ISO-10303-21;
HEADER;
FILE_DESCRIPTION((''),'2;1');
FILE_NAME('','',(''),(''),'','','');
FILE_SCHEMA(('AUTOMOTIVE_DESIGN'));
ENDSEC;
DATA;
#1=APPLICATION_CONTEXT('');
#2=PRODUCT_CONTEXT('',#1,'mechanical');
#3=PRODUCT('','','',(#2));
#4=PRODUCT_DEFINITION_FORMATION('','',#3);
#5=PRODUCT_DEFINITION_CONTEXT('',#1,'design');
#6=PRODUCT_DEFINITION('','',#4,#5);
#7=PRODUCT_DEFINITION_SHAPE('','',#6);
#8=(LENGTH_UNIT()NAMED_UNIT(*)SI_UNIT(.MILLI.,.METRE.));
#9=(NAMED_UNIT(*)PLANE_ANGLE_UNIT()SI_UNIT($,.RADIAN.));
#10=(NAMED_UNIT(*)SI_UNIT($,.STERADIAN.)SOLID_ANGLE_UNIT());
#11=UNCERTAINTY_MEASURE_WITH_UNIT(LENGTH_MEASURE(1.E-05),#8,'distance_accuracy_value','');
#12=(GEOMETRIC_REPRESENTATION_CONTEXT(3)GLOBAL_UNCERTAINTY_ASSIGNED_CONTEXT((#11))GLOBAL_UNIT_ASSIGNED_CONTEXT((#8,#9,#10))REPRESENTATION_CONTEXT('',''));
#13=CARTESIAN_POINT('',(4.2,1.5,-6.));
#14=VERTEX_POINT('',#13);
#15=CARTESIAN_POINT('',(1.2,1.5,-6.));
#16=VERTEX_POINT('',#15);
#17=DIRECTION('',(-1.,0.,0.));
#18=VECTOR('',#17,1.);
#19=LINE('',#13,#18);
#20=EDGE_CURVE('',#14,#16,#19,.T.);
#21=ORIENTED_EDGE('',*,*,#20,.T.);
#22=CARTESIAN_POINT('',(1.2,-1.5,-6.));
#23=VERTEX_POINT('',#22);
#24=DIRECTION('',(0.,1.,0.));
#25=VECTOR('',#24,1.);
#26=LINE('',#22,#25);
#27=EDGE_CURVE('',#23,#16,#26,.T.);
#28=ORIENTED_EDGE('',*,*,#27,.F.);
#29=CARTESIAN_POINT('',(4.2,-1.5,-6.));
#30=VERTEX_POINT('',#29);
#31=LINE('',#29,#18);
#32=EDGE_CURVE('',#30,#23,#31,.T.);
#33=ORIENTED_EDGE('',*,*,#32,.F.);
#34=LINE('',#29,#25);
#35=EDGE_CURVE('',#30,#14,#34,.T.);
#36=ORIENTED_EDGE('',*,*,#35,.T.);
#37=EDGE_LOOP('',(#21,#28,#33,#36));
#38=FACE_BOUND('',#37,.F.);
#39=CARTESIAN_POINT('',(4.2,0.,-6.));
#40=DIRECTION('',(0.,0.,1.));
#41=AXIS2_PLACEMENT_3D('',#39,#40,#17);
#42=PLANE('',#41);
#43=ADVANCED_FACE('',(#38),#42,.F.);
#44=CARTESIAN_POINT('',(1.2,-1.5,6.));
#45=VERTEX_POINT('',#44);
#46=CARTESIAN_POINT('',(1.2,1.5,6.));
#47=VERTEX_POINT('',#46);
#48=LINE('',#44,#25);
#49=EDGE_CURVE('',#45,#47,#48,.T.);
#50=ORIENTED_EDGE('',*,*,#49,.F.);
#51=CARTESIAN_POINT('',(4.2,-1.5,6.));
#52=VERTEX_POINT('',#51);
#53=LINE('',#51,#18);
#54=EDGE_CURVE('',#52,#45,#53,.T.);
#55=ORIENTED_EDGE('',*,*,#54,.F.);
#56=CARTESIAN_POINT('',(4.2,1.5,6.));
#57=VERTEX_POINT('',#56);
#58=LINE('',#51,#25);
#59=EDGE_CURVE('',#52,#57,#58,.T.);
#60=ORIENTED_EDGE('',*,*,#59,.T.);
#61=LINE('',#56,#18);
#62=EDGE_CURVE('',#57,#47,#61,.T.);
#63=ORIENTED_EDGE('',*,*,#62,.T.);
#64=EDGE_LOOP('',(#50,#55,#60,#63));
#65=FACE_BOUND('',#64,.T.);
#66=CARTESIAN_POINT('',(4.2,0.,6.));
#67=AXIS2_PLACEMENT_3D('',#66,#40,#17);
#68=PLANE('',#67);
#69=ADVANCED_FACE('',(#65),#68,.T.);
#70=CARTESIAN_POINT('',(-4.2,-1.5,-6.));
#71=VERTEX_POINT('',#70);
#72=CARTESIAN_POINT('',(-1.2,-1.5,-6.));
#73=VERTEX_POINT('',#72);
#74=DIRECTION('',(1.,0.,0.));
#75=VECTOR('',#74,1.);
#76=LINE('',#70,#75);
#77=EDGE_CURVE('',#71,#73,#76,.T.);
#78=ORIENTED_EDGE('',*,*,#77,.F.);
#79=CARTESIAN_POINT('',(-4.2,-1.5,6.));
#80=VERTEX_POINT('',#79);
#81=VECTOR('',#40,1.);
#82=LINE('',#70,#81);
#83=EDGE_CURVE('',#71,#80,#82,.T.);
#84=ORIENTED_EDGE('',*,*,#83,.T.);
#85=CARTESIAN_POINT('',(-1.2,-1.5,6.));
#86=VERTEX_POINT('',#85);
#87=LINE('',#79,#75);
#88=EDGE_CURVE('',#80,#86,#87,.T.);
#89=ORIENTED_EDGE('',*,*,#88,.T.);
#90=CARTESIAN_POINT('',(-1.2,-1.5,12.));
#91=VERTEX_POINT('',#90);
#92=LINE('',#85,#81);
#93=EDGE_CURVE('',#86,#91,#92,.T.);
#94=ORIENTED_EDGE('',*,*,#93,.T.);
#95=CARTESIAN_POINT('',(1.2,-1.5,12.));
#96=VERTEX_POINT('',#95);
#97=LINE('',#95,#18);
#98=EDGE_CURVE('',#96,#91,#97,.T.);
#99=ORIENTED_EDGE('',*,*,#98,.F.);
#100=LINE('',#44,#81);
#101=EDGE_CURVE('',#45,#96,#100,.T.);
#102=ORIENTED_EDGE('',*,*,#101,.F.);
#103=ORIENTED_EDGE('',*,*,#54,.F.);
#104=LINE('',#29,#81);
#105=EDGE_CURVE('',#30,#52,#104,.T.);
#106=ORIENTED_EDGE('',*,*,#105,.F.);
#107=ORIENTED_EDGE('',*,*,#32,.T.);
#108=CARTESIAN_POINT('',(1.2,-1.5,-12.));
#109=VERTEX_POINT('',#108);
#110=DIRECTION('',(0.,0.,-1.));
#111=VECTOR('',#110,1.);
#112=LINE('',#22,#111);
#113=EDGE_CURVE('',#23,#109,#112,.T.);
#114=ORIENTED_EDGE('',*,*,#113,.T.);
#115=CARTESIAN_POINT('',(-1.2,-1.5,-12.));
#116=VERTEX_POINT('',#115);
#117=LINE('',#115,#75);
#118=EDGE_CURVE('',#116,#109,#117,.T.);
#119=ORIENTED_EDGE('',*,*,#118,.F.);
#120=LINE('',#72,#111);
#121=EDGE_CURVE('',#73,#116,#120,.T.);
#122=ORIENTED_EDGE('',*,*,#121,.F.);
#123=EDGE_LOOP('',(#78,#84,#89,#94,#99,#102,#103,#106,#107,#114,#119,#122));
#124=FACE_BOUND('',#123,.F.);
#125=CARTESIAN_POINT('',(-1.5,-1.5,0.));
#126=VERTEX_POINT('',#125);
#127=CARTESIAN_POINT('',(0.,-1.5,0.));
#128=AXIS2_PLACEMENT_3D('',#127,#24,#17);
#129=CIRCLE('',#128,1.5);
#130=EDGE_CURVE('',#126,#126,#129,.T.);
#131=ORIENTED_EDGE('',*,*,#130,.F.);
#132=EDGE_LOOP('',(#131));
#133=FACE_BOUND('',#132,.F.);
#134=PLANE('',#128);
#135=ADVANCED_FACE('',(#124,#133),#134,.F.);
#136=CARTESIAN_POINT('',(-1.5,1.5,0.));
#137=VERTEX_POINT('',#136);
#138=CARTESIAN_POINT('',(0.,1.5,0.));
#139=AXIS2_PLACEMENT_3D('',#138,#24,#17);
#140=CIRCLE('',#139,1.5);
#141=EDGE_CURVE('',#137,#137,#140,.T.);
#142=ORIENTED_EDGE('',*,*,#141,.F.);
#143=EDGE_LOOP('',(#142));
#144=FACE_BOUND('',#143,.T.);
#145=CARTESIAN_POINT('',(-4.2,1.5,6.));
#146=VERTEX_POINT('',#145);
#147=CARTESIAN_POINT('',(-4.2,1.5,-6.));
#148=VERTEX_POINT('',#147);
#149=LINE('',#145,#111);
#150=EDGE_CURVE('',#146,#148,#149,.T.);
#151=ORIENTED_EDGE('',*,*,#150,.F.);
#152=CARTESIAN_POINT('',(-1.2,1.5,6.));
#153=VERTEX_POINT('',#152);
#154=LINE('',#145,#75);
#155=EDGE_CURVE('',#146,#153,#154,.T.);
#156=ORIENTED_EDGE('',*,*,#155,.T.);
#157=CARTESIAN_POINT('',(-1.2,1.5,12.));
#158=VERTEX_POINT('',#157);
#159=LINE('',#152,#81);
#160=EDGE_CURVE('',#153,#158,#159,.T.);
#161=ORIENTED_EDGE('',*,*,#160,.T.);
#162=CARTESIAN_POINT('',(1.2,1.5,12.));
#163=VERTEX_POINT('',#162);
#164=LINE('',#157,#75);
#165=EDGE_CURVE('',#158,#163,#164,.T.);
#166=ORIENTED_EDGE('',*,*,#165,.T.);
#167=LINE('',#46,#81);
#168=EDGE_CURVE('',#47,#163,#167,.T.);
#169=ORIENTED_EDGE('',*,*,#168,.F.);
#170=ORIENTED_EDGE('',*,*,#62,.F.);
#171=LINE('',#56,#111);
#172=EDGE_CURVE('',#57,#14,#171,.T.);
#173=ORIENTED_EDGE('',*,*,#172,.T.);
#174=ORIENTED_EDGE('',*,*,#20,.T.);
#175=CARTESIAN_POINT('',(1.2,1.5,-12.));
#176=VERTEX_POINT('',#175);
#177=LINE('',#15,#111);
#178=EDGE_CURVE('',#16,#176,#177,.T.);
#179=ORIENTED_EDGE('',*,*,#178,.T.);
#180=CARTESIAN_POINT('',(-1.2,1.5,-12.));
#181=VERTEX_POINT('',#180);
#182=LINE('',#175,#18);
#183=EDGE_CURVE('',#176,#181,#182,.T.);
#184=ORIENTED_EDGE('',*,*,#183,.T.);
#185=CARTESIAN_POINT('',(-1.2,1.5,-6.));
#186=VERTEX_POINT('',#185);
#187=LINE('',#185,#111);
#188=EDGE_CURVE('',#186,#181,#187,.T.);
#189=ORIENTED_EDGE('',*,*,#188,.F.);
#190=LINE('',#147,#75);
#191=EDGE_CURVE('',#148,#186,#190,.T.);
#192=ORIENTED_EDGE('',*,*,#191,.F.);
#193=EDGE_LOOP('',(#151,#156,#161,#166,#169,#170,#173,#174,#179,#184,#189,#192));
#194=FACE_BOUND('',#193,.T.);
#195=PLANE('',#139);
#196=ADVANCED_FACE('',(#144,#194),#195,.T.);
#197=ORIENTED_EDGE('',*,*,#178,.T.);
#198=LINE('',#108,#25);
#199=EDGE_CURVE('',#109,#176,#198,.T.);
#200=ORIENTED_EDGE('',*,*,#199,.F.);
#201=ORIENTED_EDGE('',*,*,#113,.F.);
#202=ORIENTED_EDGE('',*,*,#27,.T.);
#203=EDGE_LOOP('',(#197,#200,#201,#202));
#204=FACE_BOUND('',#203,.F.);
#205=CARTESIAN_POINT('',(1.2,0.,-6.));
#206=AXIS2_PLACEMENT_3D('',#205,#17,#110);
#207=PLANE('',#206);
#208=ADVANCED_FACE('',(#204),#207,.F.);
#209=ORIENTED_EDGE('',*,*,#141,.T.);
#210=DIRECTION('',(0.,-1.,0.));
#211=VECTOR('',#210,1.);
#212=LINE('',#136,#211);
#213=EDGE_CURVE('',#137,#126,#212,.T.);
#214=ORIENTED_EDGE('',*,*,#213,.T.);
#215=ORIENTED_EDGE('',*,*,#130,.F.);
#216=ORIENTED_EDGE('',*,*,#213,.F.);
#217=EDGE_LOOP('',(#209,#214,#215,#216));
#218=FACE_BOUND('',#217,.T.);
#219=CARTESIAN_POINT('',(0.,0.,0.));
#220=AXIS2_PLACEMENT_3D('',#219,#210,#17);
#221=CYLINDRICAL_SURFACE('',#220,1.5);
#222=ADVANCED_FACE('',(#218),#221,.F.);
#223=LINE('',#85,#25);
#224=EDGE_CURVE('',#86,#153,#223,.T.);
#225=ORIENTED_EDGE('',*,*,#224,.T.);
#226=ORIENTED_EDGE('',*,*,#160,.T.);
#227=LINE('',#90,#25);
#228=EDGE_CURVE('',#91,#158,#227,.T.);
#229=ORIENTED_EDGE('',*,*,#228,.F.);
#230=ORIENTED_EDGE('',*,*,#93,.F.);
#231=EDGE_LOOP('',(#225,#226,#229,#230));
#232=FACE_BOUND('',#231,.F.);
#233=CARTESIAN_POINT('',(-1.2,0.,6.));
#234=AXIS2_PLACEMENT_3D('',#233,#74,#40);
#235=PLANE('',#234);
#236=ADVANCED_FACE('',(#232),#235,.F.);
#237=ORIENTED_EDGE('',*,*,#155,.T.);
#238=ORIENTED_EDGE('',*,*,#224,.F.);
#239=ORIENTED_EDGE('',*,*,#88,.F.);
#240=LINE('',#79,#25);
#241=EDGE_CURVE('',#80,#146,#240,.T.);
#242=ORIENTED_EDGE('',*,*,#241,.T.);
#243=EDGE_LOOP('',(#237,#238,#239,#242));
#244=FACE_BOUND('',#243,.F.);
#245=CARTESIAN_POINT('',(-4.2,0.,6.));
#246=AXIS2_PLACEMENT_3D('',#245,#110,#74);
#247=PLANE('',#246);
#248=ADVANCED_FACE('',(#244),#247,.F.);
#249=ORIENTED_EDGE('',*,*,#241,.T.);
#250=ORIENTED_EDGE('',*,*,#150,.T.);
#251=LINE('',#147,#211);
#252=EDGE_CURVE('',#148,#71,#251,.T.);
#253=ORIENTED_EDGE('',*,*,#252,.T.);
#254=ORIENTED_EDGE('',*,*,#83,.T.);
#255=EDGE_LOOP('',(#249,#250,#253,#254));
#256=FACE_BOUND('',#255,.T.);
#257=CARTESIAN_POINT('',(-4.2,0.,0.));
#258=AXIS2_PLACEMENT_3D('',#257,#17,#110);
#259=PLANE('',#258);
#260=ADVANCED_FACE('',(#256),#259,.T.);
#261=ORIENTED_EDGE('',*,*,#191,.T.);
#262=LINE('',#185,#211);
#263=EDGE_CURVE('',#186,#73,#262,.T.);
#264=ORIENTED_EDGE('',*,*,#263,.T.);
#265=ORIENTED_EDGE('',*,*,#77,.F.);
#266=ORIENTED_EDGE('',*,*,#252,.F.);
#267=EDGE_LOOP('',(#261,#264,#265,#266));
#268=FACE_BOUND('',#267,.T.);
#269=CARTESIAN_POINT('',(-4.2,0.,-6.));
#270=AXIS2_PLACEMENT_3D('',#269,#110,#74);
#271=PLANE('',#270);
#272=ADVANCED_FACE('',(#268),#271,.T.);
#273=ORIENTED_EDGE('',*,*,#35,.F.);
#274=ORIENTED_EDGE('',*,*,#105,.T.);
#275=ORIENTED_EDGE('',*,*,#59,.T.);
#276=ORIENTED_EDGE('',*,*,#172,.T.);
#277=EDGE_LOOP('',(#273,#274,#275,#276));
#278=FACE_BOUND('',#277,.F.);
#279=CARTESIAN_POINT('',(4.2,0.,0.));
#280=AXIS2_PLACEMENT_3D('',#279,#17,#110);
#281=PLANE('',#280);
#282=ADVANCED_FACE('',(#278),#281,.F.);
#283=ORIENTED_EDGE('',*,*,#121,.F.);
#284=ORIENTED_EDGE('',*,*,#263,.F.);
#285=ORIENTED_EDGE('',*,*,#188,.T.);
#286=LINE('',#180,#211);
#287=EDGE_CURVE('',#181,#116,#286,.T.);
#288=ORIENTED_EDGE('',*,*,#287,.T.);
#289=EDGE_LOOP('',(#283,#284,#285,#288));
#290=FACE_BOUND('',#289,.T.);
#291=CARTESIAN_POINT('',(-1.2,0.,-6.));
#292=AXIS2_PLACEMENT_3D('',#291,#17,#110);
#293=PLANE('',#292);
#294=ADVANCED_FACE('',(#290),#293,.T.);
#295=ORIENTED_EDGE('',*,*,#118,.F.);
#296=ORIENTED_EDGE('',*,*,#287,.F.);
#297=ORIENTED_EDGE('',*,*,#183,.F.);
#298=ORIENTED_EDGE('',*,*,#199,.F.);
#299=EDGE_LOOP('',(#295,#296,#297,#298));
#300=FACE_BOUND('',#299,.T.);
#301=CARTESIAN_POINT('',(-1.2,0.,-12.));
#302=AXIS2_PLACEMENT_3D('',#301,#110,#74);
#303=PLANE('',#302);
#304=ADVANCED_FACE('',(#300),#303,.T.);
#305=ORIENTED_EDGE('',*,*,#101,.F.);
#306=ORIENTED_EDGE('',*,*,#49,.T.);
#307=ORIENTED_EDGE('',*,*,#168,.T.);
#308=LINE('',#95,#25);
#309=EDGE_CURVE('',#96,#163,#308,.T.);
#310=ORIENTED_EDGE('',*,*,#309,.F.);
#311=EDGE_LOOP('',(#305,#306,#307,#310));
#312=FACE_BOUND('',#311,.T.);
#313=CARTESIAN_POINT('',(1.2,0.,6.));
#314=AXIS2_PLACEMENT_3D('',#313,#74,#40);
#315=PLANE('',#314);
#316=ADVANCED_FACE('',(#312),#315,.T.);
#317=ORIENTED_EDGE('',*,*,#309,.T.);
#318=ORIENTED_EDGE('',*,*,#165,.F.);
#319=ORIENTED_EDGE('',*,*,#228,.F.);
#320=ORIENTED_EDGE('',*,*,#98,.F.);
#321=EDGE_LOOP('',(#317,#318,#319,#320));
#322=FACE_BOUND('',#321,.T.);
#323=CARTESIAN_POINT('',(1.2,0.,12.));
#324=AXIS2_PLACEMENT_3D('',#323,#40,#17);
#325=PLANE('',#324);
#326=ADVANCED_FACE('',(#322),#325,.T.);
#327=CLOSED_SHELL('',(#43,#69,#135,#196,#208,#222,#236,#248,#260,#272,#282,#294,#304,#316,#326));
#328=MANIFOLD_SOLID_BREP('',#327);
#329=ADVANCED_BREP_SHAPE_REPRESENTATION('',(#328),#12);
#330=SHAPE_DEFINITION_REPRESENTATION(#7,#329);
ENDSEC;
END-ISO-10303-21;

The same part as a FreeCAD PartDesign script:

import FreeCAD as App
import Part
import Sketcher
from FreeCAD import Vector

doc = App.newDocument("Part")
body = doc.addObject("PartDesign::Body", "Body")

sketch1 = body.newObject("Sketcher::SketchObject", "Sketch")
sketch1.AttachmentSupport = (doc.getObject("XZ_Plane"), [""])
sketch1.MapMode = "FlatFace"
sketch1.addGeometry([
    Part.LineSegment(Vector(-4.2, -6, 0), Vector(-4.2, 6, 0)),
    Part.LineSegment(Vector(-4.2, 6, 0), Vector(-1.2, 6, 0)),
    Part.LineSegment(Vector(-1.2, 6, 0), Vector(-1.2, 12, 0)),
    Part.LineSegment(Vector(-1.2, 12, 0), Vector(1.2, 12, 0)),
    Part.LineSegment(Vector(1.2, 12, 0), Vector(1.2, 6, 0)),
    Part.LineSegment(Vector(1.2, 6, 0), Vector(4.2, 6, 0)),
    Part.LineSegment(Vector(4.2, 6, 0), Vector(4.2, -6, 0)),
    Part.LineSegment(Vector(4.2, -6, 0), Vector(1.2, -6, 0)),
    Part.LineSegment(Vector(1.2, -6, 0), Vector(1.2, -12, 0)),
    Part.LineSegment(Vector(1.2, -12, 0), Vector(-1.2, -12, 0)),
    Part.LineSegment(Vector(-1.2, -12, 0), Vector(-1.2, -6, 0)),
    Part.LineSegment(Vector(-1.2, -6, 0), Vector(-4.2, -6, 0)),
    Part.Circle(Vector(0, 0, 0), Vector(0, 0, 1), 1.5),
], False)
sketch1.addConstraint([
    Sketcher.Constraint("Coincident", 0, 2, 1, 1),
    Sketcher.Constraint("Coincident", 1, 2, 2, 1),
    Sketcher.Constraint("Coincident", 2, 2, 3, 1),
    Sketcher.Constraint("Coincident", 3, 2, 4, 1),
    Sketcher.Constraint("Coincident", 4, 2, 5, 1),
    Sketcher.Constraint("Coincident", 5, 2, 6, 1),
    Sketcher.Constraint("Coincident", 6, 2, 7, 1),
    Sketcher.Constraint("Coincident", 7, 2, 8, 1),
    Sketcher.Constraint("Coincident", 8, 2, 9, 1),
    Sketcher.Constraint("Coincident", 9, 2, 10, 1),
    Sketcher.Constraint("Coincident", 10, 2, 11, 1),
    Sketcher.Constraint("Coincident", 11, 2, 0, 1),
    Sketcher.Constraint("Vertical", 0),
    Sketcher.Constraint("Horizontal", 1),
    Sketcher.Constraint("Vertical", 2),
    Sketcher.Constraint("Horizontal", 3),
    Sketcher.Constraint("Vertical", 4),
    Sketcher.Constraint("Horizontal", 5),
    Sketcher.Constraint("Vertical", 6),
    Sketcher.Constraint("Horizontal", 7),
    Sketcher.Constraint("Vertical", 8),
    Sketcher.Constraint("Horizontal", 9),
    Sketcher.Constraint("Vertical", 10),
    Sketcher.Constraint("Horizontal", 11),
    Sketcher.Constraint("Coincident", 12, 3, -1, 1),
    Sketcher.Constraint("Symmetric", 0, 2, 6, 2, -1, 1),
    Sketcher.Constraint("Symmetric", 2, 2, 8, 2, -1, 1),
    Sketcher.Constraint("Symmetric", 4, 2, 10, 2, -1, 1),
    Sketcher.Constraint("Symmetric", 1, 2, 4, 2, -2),
    Sketcher.Constraint("Diameter", 12, 3.0),
    Sketcher.Constraint("DistanceX", 1, 1, 1, 2, 3.0),
    Sketcher.Constraint("DistanceY", 2, 1, 2, 2, 6.0),
    Sketcher.Constraint("DistanceY", -1, 1, 0, 2, 6.0),
    Sketcher.Constraint("DistanceX", 1, 2, -1, 1, 1.2),
])
pad1 = body.newObject("PartDesign::Pad", "Pad")
pad1.Profile = sketch1
pad1.Length = 3
pad1.Midplane = True

doc.recompute()
